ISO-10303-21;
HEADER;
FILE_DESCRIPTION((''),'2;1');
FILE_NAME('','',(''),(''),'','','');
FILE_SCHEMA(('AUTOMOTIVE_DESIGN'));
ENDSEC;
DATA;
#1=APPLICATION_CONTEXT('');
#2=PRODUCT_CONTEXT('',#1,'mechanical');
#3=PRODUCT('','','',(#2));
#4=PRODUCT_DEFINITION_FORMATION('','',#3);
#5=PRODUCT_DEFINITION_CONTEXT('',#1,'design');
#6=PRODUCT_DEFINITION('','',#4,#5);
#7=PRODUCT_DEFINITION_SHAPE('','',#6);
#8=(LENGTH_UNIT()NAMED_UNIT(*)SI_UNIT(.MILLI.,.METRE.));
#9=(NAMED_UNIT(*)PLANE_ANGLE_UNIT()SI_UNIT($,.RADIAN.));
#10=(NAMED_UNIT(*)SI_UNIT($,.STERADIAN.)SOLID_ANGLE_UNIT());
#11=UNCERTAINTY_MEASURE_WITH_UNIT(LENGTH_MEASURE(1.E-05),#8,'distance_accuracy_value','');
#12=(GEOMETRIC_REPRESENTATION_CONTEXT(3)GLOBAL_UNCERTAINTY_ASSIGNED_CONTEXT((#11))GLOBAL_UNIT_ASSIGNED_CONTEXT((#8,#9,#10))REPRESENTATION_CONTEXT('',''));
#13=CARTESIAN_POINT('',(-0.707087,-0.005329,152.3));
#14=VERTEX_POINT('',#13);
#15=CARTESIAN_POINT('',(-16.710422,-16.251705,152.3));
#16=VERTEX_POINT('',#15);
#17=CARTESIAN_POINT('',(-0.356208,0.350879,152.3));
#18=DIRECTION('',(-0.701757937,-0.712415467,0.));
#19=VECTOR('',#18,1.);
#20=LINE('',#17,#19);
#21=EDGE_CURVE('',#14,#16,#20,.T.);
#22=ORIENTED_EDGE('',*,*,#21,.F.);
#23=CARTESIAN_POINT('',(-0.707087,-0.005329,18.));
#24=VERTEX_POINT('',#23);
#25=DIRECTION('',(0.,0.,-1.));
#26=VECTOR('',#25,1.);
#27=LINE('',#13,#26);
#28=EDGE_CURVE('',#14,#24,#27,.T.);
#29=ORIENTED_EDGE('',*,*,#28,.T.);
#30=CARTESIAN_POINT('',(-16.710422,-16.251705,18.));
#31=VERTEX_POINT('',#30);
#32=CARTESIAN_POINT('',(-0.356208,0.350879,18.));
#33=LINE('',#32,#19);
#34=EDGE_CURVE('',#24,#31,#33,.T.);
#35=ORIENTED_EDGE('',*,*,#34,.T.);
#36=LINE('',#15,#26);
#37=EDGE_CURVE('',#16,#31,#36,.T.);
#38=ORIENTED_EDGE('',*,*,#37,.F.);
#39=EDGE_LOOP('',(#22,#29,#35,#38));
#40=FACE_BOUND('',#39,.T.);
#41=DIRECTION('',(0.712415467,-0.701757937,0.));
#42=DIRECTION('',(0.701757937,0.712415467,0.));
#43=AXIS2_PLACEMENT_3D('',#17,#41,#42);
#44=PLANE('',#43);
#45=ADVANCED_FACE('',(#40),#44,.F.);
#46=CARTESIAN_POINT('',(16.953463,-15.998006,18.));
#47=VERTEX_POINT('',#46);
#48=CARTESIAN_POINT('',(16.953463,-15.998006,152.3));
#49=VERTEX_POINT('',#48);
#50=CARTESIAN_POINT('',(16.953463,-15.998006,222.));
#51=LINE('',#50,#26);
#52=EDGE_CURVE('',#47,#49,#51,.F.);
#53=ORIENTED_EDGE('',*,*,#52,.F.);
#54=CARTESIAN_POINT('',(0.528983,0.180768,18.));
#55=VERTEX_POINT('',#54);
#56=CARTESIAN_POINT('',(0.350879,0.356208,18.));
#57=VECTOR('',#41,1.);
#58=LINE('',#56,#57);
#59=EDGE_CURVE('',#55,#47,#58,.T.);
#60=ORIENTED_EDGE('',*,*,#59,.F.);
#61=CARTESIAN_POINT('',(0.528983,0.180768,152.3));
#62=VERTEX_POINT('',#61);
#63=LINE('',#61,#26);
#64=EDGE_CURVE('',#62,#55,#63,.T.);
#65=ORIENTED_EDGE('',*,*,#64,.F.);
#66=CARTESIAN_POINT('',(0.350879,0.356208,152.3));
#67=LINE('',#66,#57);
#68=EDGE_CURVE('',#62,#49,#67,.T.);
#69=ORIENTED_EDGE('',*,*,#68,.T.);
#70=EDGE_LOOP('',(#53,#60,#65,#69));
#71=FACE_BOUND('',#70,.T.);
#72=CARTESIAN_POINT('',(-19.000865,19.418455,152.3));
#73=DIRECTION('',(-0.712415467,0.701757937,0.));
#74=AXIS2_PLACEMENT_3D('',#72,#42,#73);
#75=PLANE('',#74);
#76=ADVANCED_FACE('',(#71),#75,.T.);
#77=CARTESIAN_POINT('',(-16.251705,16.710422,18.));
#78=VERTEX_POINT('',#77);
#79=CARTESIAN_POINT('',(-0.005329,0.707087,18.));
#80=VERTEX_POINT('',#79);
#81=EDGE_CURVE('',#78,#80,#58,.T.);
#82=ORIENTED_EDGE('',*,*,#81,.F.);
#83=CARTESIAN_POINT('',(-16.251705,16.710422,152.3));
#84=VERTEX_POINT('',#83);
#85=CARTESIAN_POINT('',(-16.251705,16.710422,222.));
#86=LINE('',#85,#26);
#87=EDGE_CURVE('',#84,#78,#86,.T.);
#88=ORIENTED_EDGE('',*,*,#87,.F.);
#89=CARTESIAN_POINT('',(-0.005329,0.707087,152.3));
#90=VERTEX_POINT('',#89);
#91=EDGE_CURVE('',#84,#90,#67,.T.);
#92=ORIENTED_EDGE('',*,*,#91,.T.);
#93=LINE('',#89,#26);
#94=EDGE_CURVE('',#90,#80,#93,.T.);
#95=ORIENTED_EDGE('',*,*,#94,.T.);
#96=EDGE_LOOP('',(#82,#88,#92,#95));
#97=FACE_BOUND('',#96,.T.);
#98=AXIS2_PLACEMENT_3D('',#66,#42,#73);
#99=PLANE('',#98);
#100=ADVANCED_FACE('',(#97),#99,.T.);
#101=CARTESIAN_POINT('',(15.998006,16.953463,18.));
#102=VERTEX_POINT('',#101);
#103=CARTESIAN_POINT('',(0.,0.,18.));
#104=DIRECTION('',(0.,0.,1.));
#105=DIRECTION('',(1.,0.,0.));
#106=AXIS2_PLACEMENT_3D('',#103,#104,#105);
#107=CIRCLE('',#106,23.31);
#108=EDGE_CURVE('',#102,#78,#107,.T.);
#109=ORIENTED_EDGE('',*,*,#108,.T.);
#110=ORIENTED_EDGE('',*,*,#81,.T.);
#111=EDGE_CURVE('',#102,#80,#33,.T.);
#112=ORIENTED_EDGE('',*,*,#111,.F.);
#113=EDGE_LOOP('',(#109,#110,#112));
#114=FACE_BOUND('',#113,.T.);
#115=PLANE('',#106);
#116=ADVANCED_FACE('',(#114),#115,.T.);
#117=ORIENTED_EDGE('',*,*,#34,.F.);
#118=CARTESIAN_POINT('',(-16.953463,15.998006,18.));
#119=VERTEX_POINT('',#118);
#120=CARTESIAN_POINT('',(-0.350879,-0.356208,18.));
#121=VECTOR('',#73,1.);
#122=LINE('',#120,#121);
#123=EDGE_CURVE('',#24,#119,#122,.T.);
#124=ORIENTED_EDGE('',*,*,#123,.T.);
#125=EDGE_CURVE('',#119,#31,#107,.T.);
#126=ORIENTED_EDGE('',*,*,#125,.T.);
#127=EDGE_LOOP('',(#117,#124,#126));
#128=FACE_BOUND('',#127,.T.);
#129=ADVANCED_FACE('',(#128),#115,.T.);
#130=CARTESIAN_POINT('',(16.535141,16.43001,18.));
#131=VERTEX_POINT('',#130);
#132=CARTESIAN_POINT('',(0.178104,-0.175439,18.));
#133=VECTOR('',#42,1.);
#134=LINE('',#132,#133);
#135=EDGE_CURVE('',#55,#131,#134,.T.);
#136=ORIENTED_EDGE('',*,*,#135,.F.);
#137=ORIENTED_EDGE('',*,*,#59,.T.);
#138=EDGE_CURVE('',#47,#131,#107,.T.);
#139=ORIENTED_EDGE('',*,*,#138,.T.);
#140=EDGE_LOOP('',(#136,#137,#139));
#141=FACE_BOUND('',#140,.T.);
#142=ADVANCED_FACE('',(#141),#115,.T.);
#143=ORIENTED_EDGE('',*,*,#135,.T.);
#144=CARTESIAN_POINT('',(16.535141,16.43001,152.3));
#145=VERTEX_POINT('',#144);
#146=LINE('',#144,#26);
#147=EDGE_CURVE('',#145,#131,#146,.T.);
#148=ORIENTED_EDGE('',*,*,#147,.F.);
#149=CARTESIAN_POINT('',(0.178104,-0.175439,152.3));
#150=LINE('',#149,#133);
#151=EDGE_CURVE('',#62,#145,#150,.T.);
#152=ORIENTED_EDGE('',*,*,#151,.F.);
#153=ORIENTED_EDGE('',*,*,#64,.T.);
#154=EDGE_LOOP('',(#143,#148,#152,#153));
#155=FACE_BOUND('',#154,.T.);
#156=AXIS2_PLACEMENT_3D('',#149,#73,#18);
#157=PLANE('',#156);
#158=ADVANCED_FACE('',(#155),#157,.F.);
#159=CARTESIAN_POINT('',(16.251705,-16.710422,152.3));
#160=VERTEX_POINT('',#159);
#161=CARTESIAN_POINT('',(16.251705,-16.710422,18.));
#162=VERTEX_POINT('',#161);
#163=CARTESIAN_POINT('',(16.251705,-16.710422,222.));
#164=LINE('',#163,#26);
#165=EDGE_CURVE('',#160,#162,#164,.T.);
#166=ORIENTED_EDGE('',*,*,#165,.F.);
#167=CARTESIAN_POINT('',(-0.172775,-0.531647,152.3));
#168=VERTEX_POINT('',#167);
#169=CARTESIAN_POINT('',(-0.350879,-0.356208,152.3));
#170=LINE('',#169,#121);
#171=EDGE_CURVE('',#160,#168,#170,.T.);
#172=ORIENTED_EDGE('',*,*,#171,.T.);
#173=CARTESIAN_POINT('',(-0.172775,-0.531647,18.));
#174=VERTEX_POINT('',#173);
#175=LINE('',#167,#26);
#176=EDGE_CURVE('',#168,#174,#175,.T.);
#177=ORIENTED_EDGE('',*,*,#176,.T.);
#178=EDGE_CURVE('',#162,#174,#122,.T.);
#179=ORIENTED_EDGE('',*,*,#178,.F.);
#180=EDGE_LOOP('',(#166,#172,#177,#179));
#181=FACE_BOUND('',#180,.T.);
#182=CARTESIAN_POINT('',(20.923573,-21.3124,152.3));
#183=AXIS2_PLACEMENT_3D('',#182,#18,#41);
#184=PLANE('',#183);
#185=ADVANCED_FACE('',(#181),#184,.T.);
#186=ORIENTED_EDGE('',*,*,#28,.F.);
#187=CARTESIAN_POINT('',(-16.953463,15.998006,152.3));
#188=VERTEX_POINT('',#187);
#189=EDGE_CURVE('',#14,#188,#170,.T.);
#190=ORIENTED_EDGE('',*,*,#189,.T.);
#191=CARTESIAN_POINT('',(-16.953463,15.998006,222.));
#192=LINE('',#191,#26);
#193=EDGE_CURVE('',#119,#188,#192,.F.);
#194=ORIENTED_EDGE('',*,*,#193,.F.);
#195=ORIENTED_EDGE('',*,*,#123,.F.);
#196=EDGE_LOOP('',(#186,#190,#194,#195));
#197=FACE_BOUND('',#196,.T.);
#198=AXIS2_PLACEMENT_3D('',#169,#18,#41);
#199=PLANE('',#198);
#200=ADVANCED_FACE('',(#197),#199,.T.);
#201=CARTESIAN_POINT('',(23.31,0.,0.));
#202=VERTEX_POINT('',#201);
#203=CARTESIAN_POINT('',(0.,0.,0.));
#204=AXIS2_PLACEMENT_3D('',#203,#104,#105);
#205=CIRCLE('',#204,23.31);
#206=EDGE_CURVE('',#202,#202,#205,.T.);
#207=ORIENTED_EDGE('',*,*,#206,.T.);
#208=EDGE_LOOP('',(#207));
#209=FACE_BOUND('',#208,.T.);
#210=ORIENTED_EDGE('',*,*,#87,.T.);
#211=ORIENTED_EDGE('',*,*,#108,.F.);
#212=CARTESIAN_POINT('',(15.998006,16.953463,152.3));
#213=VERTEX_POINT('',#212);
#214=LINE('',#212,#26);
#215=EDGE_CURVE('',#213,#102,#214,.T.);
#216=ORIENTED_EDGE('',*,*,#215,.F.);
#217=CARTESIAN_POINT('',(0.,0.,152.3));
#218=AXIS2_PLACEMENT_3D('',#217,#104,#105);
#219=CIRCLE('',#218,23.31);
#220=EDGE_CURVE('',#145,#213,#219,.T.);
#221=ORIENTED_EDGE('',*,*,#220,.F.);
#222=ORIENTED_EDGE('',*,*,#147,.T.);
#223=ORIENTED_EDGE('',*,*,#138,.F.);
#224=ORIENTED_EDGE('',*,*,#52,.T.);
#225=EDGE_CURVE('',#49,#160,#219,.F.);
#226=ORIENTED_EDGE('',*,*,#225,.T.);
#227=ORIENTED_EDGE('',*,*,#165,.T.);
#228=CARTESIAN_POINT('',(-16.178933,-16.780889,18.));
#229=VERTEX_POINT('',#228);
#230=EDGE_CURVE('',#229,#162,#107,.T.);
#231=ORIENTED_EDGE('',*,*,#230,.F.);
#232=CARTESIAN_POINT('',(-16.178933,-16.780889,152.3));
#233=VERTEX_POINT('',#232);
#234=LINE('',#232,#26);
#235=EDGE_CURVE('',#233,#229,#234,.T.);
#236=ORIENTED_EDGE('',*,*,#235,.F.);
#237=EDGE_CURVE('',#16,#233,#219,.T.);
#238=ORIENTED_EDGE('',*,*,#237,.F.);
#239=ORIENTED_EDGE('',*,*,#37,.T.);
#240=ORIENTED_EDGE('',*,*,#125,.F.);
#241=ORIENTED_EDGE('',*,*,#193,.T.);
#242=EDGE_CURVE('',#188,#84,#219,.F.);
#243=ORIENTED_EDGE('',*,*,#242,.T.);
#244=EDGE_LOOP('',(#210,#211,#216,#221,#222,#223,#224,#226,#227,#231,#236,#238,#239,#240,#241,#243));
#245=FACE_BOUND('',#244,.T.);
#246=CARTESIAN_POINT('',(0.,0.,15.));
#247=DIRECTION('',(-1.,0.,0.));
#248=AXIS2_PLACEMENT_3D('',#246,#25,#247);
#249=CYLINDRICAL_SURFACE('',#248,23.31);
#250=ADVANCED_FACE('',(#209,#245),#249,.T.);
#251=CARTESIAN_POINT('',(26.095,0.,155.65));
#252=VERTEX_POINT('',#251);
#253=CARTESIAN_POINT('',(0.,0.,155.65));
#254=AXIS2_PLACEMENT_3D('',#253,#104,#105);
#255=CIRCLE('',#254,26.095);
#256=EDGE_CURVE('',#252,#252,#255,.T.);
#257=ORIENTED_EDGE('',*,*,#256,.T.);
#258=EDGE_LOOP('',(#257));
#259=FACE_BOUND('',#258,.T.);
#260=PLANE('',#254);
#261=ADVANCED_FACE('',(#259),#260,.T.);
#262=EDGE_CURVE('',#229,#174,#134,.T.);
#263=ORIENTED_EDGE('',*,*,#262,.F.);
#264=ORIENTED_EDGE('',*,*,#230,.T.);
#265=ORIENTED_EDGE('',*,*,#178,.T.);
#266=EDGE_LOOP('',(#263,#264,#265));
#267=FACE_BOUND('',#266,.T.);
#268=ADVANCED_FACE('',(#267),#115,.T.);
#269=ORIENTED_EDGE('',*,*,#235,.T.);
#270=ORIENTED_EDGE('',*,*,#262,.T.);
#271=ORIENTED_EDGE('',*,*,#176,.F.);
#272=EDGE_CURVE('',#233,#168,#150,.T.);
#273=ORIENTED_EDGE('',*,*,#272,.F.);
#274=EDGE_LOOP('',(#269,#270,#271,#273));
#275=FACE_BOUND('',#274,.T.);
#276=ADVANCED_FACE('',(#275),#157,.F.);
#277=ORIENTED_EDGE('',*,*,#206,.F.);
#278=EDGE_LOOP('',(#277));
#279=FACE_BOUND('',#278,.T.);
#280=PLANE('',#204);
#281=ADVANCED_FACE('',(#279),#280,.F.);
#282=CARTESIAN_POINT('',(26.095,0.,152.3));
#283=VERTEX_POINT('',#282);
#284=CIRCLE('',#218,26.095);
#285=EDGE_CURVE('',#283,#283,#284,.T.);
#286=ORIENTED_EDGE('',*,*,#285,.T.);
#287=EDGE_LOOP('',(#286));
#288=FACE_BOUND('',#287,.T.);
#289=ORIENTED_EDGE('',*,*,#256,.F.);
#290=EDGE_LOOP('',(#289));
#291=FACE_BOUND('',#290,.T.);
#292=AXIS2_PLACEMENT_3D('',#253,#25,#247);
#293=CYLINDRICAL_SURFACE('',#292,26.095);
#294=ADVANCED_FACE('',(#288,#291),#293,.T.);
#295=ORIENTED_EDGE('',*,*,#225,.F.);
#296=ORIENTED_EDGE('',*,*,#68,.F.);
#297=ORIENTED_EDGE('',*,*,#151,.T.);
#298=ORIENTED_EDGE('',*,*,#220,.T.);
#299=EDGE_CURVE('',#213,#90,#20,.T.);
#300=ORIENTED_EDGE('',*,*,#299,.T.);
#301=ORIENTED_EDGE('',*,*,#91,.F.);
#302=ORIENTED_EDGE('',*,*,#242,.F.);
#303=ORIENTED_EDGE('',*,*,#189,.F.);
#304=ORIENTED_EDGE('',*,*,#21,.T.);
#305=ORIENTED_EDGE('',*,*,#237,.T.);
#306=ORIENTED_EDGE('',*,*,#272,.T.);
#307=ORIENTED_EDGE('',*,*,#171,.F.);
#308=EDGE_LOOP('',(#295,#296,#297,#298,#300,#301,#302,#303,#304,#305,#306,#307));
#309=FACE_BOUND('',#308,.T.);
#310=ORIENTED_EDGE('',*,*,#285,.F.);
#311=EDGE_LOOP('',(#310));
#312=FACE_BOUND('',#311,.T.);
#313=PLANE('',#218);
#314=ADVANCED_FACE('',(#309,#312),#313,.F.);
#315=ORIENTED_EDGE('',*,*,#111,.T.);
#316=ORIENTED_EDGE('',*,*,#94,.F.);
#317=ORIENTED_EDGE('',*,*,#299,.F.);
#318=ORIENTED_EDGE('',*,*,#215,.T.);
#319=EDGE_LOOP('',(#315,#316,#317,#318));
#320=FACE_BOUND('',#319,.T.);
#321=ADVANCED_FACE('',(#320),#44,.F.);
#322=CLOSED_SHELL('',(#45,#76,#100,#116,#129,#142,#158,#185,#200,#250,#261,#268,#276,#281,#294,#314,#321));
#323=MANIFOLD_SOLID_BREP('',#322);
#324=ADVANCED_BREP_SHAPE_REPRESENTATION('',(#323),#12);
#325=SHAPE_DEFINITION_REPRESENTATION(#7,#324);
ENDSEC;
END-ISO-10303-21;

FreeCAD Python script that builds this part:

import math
import FreeCAD as App
import Part
import Sketcher
Q = App.Units.Quantity

doc = App.newDocument("Part")
params = doc.addObject("Spreadsheet::Sheet", "Params")
for row, (alias, value) in enumerate([
    ("sketch1_diameter", "46.62 mm"),
    ("pad1_length", "15 mm"),
    ("sketch2_diameter", "46.62 mm"),
    ("pad2_length", "3 mm"),
    ("sketch3_radius", "23.310001 mm"),
    ("sketch3_length", "1 mm"),
    ("pad3_length", "134.3 mm"),
    ("sketch4_diameter", "46.62 mm"),
    ("pocket1_length", "204 mm"),
    ("sketch5_diameter", "52.19 mm"),
    ("pad4_length", "3.35 mm"),
], start=1):
    params.set(f"A{row}", alias)
    params.set(f"B{row}", "=" + value)
    params.setAlias(f"B{row}", alias)

body = doc.addObject("PartDesign::Body", "Body")

sketch1 = body.newObject("Sketcher::SketchObject", "Sketch")
sketch1.AttachmentSupport = (doc.getObject("XY_Plane"), [""])
sketch1.MapMode = "FlatFace"
sketch1.addGeometry(Part.Circle(App.Vector(0, 0, 0), App.Vector(0, 0, 1), 23), False)
sketch1.addConstraint([
    Sketcher.Constraint("Coincident", 0, 3, -1, 1),
    Sketcher.Constraint("Diameter", 0, Q("46.62 mm")),
])
sketch1.setExpression("Constraints[1]", "Params.sketch1_diameter")
pad1 = body.newObject("PartDesign::Pad", "Pad")
pad1.Profile = sketch1
pad1.setExpression("Length", "Params.pad1_length")

sketch2 = body.newObject("Sketcher::SketchObject", "Sketch001")
sketch2.AttachmentSupport = (doc.getObject("XY_Plane"), [""])
sketch2.MapMode = "FlatFace"
sketch2.AttachmentOffset = App.Placement(App.Vector(0, 0, 15), App.Rotation())
sketch2.addGeometry(Part.Circle(App.Vector(0, 0, 0), App.Vector(0, 0, 1), 23), False)
sketch2.addConstraint([
    Sketcher.Constraint("Coincident", 0, 3, -1, 1),
    Sketcher.Constraint("Diameter", 0, Q("46.62 mm")),
])
sketch2.setExpression("Constraints[1]", "Params.sketch2_diameter")
pad2 = body.newObject("PartDesign::Pad", "Pad001")
pad2.Profile = sketch2
pad2.setExpression("Length", "Params.pad2_length")

sketch3 = body.newObject("Sketcher::SketchObject", "Sketch002")
sketch3.AttachmentSupport = (doc.getObject("XY_Plane"), [""])
sketch3.MapMode = "FlatFace"
sketch3.AttachmentOffset = App.Placement(App.Vector(0, 0, 18), App.Rotation())
sketch3.addGeometry([
    Part.LineSegment(App.Vector(-19.000865, 19.418455, 0), App.Vector(-19.738245, 18.741129, 0)),
    Part.LineSegment(App.Vector(-19.738245, 18.741129, 0), App.Vector(-0.707087, -0.005329, 0)),
    Part.LineSegment(App.Vector(-0.707087, -0.005329, 0), App.Vector(-16.710422, -16.251705, 0)),
    Part.ArcOfCircle(Part.Circle(App.Vector(0, 0, 0), App.Vector(0, 0, 1), 23.310001), math.radians(-135.797304), math.radians(-133.953705)),
    Part.LineSegment(App.Vector(-16.178933, -16.780889, 0), App.Vector(-0.172775, -0.531647, 0)),
    Part.LineSegment(App.Vector(-0.172775, -0.531647, 0), App.Vector(20.923573, -21.3124, 0)),
    Part.LineSegment(App.Vector(20.923573, -21.3124, 0), App.Vector(21.625331, -20.599984, 0)),
    Part.LineSegment(App.Vector(21.625331, -20.599984, 0), App.Vector(0.528983, 0.180768, 0)),
    Part.LineSegment(App.Vector(0.528983, 0.180768, 0), App.Vector(16.535141, 16.43001, 0)),
    Part.ArcOfCircle(Part.Circle(App.Vector(-0.000003, -0.000003, 0), App.Vector(0, 0, 1), 23.310004), math.radians(44.817276), math.radians(46.660876)),
    Part.LineSegment(App.Vector(15.998006, 16.953463, 0), App.Vector(-0.005329, 0.707087, 0)),
    Part.LineSegment(App.Vector(-0.005329, 0.707087, 0), App.Vector(-19.000865, 19.418455, 0)),
], False)
sketch3.addConstraint([
    Sketcher.Constraint("Coincident", 0, 2, 1, 1),
    Sketcher.Constraint("Coincident", 1, 2, 2, 1),
    Sketcher.Constraint("Coincident", 2, 2, 3, 1),
    Sketcher.Constraint("Coincident", 3, 2, 4, 1),
    Sketcher.Constraint("Coincident", 4, 2, 5, 1),
    Sketcher.Constraint("Coincident", 5, 2, 6, 1),
    Sketcher.Constraint("Coincident", 6, 2, 7, 1),
    Sketcher.Constraint("Coincident", 7, 2, 8, 1),
    Sketcher.Constraint("Coincident", 8, 2, 9, 1),
    Sketcher.Constraint("Coincident", 9, 2, 10, 1),
    Sketcher.Constraint("Coincident", 10, 2, 11, 1),
    Sketcher.Constraint("Coincident", 11, 2, 0, 1),
    Sketcher.Constraint("Coincident", 3, 3, -1, 1),
    Sketcher.Constraint("Coincident", 9, 3, -1, 1),
    Sketcher.Constraint("Radius", 3, Q("23.310001 mm")),
    Sketcher.Constraint("Distance", 6, Q("1 mm")),
    Sketcher.Constraint("Radius", 9, Q("23.310004 mm")),
    Sketcher.Constraint("DistanceY", 5, 2, -1, 1, Q("21.3124 mm")),
    Sketcher.Constraint("DistanceY", 2, 2, 9, 3, Q("16.251702 mm")),
    Sketcher.Constraint("Distance", 0, Q("1.001249 mm")),
    Sketcher.Constraint("Distance", 4, Q("22.808659 mm")),
    Sketcher.Constraint("Distance", 8, Q("22.808659 mm")),
    Sketcher.Constraint("DistanceY", -1, 1, 0, 2, Q("18.741129 mm")),
    Sketcher.Constraint("DistanceY", 1, 2, -1, 1, Q("0.005329 mm")),
    Sketcher.Constraint("DistanceY", 3, 2, -1, 1, Q("16.780889 mm")),
    Sketcher.Constraint("DistanceX", -1, 1, 6, 2, Q("21.625331 mm")),
    Sketcher.Constraint("DistanceY", -1, 1, 7, 2, Q("0.180768 mm")),
    Sketcher.Constraint("DistanceX", -1, 1, 8, 2, Q("16.535141 mm")),
    Sketcher.Constraint("DistanceX", 10, 2, -1, 1, Q("0.005329 mm")),
    Sketcher.Constraint("DistanceX", 0, 2, 9, 3, Q("19.738242 mm")),
    Sketcher.Constraint("DistanceX", 0, 2, 1, 2, Q("19.031158 mm")),
    Sketcher.Constraint("DistanceX", 1, 2, 4, 2, Q("0.534312 mm")),
    Sketcher.Constraint("DistanceX", 1, 2, 5, 2, Q("21.630659 mm")),
    Sketcher.Constraint("DistanceX", 9, 3, 9, 2, Q("15.998009 mm")),
    Sketcher.Constraint("DistanceY", 9, 3, 10, 2, Q("0.70709 mm")),
    Sketcher.Constraint("DistanceX", 0, 2, 11, 2, Q("0.73738 mm")),
])
sketch3.setExpression("Constraints[14]", "Params.sketch3_radius")
sketch3.setExpression("Constraints[15]", "Params.sketch3_length")
pad3 = body.newObject("PartDesign::Pad", "Pad002")
pad3.Profile = sketch3
pad3.setExpression("Length", "Params.pad3_length")

sketch4 = body.newObject("Sketcher::SketchObject", "Sketch003")
sketch4.AttachmentSupport = (doc.getObject("XY_Plane"), [""])
sketch4.MapMode = "FlatFace"
sketch4.AttachmentOffset = App.Placement(App.Vector(0, 0, 18), App.Rotation())
sketch4.addGeometry([
    Part.LineSegment(App.Vector(-41, 41, 0), App.Vector(-41, -41, 0)),
    Part.LineSegment(App.Vector(-41, -41, 0), App.Vector(41, -41, 0)),
    Part.LineSegment(App.Vector(41, -41, 0), App.Vector(41, 41, 0)),
    Part.LineSegment(App.Vector(41, 41, 0), App.Vector(-41, 41, 0)),
    Part.Circle(App.Vector(0, 0, 0), App.Vector(0, 0, 1), 23),
], False)
sketch4.addConstraint([
    Sketcher.Constraint("Coincident", 0, 2, 1, 1),
    Sketcher.Constraint("Coincident", 1, 2, 2, 1),
    Sketcher.Constraint("Coincident", 2, 2, 3, 1),
    Sketcher.Constraint("Coincident", 3, 2, 0, 1),
    Sketcher.Constraint("Vertical", 0),
    Sketcher.Constraint("Horizontal", 1),
    Sketcher.Constraint("Vertical", 2),
    Sketcher.Constraint("Horizontal", 3),
    Sketcher.Constraint("Coincident", 4, 3, -1, 1),
    Sketcher.Constraint("Symmetric", 0, 2, 2, 2, -1, 1),
    Sketcher.Constraint("Equal", 3, 0),
    Sketcher.Constraint("Diameter", 4, Q("46.62 mm")),
    Sketcher.Constraint("DistanceX", 1, 1, 1, 2, Q("81.812 mm")),
])
sketch4.setExpression("Constraints[11]", "Params.sketch4_diameter")
pocket1 = body.newObject("PartDesign::Pocket", "Pocket")
pocket1.Profile = sketch4
pocket1.setExpression("Length", "Params.pocket1_length")
pocket1.Reversed = True

sketch5 = body.newObject("Sketcher::SketchObject", "Sketch004")
sketch5.AttachmentSupport = (doc.getObject("XY_Plane"), [""])
sketch5.MapMode = "FlatFace"
sketch5.AttachmentOffset = App.Placement(App.Vector(0, 0, 152.3), App.Rotation())
sketch5.addGeometry(Part.Circle(App.Vector(0, 0, 0), App.Vector(0, 0, 1), 26), False)
sketch5.addConstraint([
    Sketcher.Constraint("Coincident", 0, 3, -1, 1),
    Sketcher.Constraint("Diameter", 0, Q("52.19 mm")),
])
sketch5.setExpression("Constraints[1]", "Params.sketch5_diameter")
pad4 = body.newObject("PartDesign::Pad", "Pad003")
pad4.Profile = sketch5
pad4.setExpression("Length", "Params.pad4_length")

doc.recompute()
